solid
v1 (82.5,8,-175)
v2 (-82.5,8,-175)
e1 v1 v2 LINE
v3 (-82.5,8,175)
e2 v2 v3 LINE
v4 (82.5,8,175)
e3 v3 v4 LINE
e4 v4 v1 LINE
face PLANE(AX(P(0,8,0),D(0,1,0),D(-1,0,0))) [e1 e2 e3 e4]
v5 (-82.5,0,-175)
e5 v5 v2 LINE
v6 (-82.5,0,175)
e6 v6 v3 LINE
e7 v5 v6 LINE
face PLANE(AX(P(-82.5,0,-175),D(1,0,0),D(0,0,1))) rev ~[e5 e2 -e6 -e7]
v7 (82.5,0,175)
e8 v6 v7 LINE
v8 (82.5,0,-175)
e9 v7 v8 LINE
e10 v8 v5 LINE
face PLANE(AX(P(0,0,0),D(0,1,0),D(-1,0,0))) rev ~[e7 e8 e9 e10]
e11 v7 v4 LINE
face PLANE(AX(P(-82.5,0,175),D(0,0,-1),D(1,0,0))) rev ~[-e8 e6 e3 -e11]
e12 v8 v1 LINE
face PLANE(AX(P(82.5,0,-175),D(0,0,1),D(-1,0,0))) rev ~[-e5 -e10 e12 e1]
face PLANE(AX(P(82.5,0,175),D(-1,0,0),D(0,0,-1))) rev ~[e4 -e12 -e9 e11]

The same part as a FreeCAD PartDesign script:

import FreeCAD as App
import Part
import Sketcher
from FreeCAD import Vector
Q = App.Units.Quantity

doc = App.newDocument("Part")
body = doc.addObject("PartDesign::Body", "Body")

# Sketch on XZ plane
sketch1 = doc.addObject("Sketcher::SketchObject", "Sketch")
body.addObject(sketch1)
sketch1.AttachmentSupport = (doc.XZ_Plane, [""])
sketch1.MapMode = "FlatFace"
sketch1.addGeometry([
    Part.LineSegment(Vector(-82.5, -175, 0), Vector(-82.5, 175, 0)),
    Part.LineSegment(Vector(-82.5, 175, 0), Vector(82.5, 175, 0)),
    Part.LineSegment(Vector(82.5, 175, 0), Vector(82.5, -175, 0)),
    Part.LineSegment(Vector(82.5, -175, 0), Vector(-82.5, -175, 0)),
], False)
sketch1.addConstraint([
    Sketcher.Constraint("Coincident", 0, 2, 1, 1),
    Sketcher.Constraint("Coincident", 1, 2, 2, 1),
    Sketcher.Constraint("Coincident", 2, 2, 3, 1),
    Sketcher.Constraint("Coincident", 3, 2, 0, 1),
    Sketcher.Constraint("Vertical", 0),
    Sketcher.Constraint("Horizontal", 1),
    Sketcher.Constraint("Vertical", 2),
    Sketcher.Constraint("Horizontal", 3),
    Sketcher.Constraint("Symmetric", 0, 2, 2, 2, -1, 1),
    Sketcher.Constraint("DistanceX", 1, 1, 1, 2, Q("165 mm")),
    Sketcher.Constraint("DistanceY", 0, 1, 0, 2, Q("350 mm")),
])
pad1 = doc.addObject("PartDesign::Pad", "Pad")
body.addObject(pad1)
pad1.Profile = sketch1
pad1.Length = 8
pad1.Reversed = True

doc.recompute()
